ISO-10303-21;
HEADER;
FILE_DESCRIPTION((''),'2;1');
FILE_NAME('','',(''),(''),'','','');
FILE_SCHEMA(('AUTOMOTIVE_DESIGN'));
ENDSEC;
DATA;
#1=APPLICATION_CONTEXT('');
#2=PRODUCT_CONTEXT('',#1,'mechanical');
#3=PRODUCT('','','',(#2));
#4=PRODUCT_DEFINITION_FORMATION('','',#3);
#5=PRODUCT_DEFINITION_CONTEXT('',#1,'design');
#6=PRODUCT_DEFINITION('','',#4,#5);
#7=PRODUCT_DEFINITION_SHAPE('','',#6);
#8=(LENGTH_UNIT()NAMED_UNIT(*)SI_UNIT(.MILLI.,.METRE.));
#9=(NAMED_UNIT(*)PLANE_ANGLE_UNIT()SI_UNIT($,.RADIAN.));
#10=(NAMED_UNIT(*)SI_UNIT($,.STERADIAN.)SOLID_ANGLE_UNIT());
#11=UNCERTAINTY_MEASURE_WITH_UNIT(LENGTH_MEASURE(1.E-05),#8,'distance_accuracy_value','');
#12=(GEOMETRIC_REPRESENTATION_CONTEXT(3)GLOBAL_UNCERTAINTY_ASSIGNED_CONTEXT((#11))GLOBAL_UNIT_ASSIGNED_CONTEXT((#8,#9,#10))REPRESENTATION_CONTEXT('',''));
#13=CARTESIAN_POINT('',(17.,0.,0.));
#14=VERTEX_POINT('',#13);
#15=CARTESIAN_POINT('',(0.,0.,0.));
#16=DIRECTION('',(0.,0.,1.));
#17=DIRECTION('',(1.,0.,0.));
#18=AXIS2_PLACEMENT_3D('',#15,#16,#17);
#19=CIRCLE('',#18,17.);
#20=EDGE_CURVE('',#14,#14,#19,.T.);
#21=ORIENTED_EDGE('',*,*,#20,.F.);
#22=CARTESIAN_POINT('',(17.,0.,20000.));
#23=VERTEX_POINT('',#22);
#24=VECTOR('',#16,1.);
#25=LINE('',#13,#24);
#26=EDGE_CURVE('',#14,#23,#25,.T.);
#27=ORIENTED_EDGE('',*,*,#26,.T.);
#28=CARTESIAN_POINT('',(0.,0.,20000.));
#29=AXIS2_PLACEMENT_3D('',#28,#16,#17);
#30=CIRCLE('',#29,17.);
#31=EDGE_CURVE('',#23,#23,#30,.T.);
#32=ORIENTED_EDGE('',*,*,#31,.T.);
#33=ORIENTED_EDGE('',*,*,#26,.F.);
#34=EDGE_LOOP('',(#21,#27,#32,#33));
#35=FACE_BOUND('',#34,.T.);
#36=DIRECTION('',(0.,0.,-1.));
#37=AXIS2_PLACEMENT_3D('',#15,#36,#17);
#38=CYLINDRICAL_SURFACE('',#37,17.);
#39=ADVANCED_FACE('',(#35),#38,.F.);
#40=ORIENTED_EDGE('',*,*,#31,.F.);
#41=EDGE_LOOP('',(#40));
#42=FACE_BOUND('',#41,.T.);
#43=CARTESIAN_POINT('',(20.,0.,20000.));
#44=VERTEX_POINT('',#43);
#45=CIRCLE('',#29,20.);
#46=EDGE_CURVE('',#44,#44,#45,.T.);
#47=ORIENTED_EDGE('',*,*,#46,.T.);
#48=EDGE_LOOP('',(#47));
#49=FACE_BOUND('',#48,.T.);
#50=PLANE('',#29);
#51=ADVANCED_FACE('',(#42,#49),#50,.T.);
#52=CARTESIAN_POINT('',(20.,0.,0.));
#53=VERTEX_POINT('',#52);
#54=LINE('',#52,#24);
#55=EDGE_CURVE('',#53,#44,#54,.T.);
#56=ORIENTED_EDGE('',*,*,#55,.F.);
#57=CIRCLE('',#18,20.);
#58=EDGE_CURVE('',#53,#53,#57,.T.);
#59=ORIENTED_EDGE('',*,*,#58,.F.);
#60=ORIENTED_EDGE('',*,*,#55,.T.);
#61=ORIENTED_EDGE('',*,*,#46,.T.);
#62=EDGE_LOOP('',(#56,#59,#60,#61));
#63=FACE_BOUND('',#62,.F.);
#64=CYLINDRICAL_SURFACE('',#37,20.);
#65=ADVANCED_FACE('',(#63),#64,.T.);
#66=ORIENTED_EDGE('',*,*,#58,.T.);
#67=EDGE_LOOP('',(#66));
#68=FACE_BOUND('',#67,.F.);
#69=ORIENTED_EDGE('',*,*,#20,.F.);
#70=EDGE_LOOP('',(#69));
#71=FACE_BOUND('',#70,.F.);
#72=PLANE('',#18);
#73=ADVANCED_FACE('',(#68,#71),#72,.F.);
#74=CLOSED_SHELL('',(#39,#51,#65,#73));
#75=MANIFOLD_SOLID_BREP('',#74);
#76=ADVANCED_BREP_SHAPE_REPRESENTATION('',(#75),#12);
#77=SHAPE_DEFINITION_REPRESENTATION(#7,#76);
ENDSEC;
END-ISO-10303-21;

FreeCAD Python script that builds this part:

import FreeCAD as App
import Part
import Sketcher
Q = App.Units.Quantity

doc = App.newDocument("Part")
body = doc.addObject("PartDesign::Body", "Body")

# Sketch on XY plane
sketch1 = body.newObject("Sketcher::SketchObject", "Sketch")
sketch1.AttachmentSupport = (doc.getObject("XY_Plane"), [""])
sketch1.MapMode = "FlatFace"
sketch1.addGeometry([
    Part.Circle(App.Vector(0, 0, 0), App.Vector(0, 0, 1), 20),
    Part.Circle(App.Vector(0, 0, 0), App.Vector(0, 0, 1), 17),
], False)
sketch1.addConstraint([
    Sketcher.Constraint("Coincident", 0, 3, -1, 1),
    Sketcher.Constraint("Coincident", 1, 3, -1, 1),
    Sketcher.Constraint("Diameter", 1, Q("34 mm")),
    Sketcher.Constraint("Diameter", 0, Q("40 mm")),
])
pad1 = body.newObject("PartDesign::Pad", "Pad")
pad1.Profile = sketch1
pad1.Length = 20000

doc.recompute()
